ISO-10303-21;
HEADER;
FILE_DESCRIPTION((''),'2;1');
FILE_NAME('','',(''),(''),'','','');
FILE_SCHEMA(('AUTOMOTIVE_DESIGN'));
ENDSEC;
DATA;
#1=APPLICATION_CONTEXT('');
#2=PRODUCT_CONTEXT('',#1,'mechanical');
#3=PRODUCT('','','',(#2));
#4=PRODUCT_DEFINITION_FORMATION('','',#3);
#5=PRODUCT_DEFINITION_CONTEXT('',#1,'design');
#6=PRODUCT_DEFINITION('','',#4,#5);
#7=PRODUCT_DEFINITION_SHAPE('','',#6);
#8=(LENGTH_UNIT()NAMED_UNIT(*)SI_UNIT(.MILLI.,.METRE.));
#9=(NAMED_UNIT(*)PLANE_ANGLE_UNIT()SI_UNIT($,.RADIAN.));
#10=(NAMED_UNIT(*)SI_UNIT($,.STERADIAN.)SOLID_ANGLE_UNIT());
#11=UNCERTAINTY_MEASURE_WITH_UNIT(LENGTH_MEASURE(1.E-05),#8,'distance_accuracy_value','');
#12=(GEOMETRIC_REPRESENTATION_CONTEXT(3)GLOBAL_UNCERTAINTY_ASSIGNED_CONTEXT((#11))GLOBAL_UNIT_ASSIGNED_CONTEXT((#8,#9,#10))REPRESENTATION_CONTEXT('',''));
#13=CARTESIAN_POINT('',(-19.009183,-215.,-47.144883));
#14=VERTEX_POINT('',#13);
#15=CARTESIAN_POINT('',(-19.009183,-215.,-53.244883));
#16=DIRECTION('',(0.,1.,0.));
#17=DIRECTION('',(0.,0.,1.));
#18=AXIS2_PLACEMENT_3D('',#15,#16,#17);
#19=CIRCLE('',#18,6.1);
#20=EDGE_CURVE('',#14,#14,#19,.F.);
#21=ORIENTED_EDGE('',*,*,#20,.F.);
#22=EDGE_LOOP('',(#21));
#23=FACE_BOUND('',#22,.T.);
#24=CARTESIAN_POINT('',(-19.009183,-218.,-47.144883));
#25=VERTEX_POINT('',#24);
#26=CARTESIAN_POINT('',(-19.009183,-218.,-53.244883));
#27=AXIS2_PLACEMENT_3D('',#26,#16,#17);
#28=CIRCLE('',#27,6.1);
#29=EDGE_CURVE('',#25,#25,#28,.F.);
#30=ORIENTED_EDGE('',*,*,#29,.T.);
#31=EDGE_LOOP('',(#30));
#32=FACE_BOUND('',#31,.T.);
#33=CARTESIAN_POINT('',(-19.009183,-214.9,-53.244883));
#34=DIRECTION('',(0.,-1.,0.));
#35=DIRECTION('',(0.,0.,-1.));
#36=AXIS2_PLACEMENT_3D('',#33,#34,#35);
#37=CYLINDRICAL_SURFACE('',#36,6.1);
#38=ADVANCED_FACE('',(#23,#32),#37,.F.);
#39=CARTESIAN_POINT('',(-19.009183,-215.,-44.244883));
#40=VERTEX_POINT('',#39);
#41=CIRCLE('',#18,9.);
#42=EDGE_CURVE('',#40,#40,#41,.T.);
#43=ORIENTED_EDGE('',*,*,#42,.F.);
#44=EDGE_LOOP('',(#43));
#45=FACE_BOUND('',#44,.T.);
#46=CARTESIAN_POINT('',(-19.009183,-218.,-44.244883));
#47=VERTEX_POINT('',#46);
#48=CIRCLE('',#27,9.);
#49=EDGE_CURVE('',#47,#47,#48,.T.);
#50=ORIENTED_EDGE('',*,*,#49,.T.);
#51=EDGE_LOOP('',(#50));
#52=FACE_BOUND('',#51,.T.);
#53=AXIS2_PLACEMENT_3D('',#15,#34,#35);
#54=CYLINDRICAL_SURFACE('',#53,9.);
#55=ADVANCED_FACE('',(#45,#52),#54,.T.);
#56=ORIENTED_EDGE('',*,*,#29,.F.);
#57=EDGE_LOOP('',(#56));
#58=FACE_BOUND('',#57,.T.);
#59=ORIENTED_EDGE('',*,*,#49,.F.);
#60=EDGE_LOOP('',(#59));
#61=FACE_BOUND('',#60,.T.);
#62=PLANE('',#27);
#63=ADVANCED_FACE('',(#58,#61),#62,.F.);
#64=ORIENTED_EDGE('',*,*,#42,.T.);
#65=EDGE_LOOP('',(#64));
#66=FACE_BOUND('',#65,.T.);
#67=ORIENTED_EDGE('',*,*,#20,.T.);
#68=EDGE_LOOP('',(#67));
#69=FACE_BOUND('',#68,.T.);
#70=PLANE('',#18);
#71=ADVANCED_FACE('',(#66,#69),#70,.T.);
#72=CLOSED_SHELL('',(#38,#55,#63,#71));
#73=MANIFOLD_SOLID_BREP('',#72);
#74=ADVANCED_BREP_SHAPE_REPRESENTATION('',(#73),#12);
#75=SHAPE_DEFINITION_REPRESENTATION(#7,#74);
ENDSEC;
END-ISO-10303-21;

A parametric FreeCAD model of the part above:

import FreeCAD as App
import Part
import Sketcher

V = App.Vector
Q = App.Units.Quantity

doc = App.newDocument("Part")
body = doc.addObject("PartDesign::Body", "Body")

# Sketch on XZ plane
sketch1 = doc.addObject("Sketcher::SketchObject", "Sketch")
body.addObject(sketch1)
sketch1.AttachmentSupport = (doc.XZ_Plane, [""])
sketch1.MapMode = "FlatFace"
sketch1.AttachmentOffset = App.Placement(V(0, 0, 218), App.Rotation())
sketch1.addGeometry(Part.Circle(V(-19, -53, 0), V(0, 0, 1), 9), False)
sketch1.addConstraint([
    Sketcher.Constraint("Diameter", 0, Q("18 mm")),
    Sketcher.Constraint("DistanceX", 0, 3, -1, 1, Q("19.009183 mm")),
    Sketcher.Constraint("DistanceY", 0, 3, -1, 1, Q("53.244883 mm")),
])
pad1 = doc.addObject("PartDesign::Pad", "Pad")
body.addObject(pad1)
pad1.Profile = sketch1
pad1.Length = 3
pad1.Reversed = True

# Sketch on XZ plane
sketch2 = doc.addObject("Sketcher::SketchObject", "Sketch001")
body.addObject(sketch2)
sketch2.AttachmentSupport = (doc.XZ_Plane, [""])
sketch2.MapMode = "FlatFace"
sketch2.AttachmentOffset = App.Placement(V(0, 0, 218.1), App.Rotation())
sketch2.addGeometry(Part.Circle(V(-19, -53, 0), V(0, 0, 1), 6), False)
sketch2.addConstraint([
    Sketcher.Constraint("Diameter", 0, Q("12.2 mm")),
    Sketcher.Constraint("DistanceX", 0, 3, -1, 1, Q("19.009183 mm")),
    Sketcher.Constraint("DistanceY", 0, 3, -1, 1, Q("53.244883 mm")),
])
pocket1 = doc.addObject("PartDesign::Pocket", "Pocket")
body.addObject(pocket1)
pocket1.Profile = sketch2
pocket1.Length = 3.2

doc.recompute()
